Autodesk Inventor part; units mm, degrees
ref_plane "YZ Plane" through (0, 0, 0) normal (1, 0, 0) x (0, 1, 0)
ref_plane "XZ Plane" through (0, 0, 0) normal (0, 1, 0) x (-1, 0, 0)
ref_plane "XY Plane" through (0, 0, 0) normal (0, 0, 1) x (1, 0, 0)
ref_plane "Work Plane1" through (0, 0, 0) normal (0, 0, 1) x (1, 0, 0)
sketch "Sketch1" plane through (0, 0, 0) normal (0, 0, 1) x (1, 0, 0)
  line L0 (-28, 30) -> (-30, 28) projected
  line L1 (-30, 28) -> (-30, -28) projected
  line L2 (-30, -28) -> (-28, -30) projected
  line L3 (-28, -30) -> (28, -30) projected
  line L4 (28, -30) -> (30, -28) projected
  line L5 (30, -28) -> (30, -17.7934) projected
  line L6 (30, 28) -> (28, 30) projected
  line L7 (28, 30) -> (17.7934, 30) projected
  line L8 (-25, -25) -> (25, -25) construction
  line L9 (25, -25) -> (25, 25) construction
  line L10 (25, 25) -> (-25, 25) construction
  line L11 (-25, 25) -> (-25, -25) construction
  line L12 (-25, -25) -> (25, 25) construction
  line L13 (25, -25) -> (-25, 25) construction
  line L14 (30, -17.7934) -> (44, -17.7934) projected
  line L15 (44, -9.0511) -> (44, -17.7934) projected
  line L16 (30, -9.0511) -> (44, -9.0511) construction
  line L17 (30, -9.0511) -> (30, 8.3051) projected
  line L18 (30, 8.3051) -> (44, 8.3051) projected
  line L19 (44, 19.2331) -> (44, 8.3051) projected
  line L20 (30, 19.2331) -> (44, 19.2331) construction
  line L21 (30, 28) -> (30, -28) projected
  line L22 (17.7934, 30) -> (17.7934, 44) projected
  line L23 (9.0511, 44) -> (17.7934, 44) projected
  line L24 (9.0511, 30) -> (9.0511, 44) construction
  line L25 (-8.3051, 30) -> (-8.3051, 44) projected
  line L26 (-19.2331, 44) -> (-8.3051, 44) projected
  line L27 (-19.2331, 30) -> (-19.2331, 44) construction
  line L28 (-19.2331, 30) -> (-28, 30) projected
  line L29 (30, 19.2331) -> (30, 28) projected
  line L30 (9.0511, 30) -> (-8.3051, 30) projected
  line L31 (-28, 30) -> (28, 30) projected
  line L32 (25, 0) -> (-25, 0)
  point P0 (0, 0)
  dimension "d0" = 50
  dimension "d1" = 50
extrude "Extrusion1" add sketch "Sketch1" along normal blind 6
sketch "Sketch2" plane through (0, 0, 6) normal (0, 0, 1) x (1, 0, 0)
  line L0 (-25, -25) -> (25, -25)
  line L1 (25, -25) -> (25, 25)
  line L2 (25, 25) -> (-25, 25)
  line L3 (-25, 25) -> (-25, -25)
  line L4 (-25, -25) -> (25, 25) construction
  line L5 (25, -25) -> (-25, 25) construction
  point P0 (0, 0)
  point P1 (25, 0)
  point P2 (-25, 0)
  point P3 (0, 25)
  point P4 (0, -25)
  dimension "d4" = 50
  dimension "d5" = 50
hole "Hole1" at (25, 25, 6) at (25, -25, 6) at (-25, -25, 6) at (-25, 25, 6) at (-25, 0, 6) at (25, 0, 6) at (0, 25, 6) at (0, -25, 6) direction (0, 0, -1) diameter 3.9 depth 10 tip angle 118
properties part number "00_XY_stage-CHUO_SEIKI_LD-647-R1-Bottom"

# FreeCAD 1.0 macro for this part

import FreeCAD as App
import Part
import Sketcher
from FreeCAD import Vector
Q = App.Units.Quantity

doc = App.newDocument("Part")
body = doc.addObject("PartDesign::Body", "Body")

# Sketch on XY plane
sketch1 = body.newObject("Sketcher::SketchObject", "Sketch")
sketch1.AttachmentSupport = (doc.getObject("XY_Plane"), [""])
sketch1.MapMode = "FlatFace"
sketch1.addGeometry(Part.LineSegment(Vector(28, 30, 0), Vector(-28, 30, 0)), False)
sketch1.addGeometry(Part.LineSegment(Vector(-28, 30, 0), Vector(-30, 28, 0)), False)
sketch1.addGeometry(Part.LineSegment(Vector(-30, 28, 0), Vector(-30, -28, 0)), False)
sketch1.addGeometry(Part.LineSegment(Vector(-30, -28, 0), Vector(-28, -30, 0)), False)
sketch1.addGeometry(Part.LineSegment(Vector(-28, -30, 0), Vector(28, -30, 0)), False)
sketch1.addGeometry(Part.LineSegment(Vector(28, -30, 0), Vector(30, -28, 0)), False)
sketch1.addGeometry(Part.LineSegment(Vector(30, -28, 0), Vector(30, 28, 0)), False)
sketch1.addGeometry(Part.LineSegment(Vector(30, 28, 0), Vector(28, 30, 0)), False)
sketch1.addConstraint(Sketcher.Constraint("Coincident", 0, 2, 1, 1))
sketch1.addConstraint(Sketcher.Constraint("Coincident", 1, 2, 2, 1))
sketch1.addConstraint(Sketcher.Constraint("Coincident", 2, 2, 3, 1))
sketch1.addConstraint(Sketcher.Constraint("Coincident", 3, 2, 4, 1))
sketch1.addConstraint(Sketcher.Constraint("Coincident", 4, 2, 5, 1))
sketch1.addConstraint(Sketcher.Constraint("Coincident", 5, 2, 6, 1))
sketch1.addConstraint(Sketcher.Constraint("Coincident", 6, 2, 7, 1))
sketch1.addConstraint(Sketcher.Constraint("Coincident", 7, 2, 0, 1))
sketch1.addConstraint(Sketcher.Constraint("Horizontal", 0))
sketch1.addConstraint(Sketcher.Constraint("Vertical", 2))
sketch1.addConstraint(Sketcher.Constraint("Horizontal", 4))
sketch1.addConstraint(Sketcher.Constraint("Vertical", 6))
sketch1.addConstraint(Sketcher.Constraint("Symmetric", 0, 2, 4, 2, -1, 1))
sketch1.addConstraint(Sketcher.Constraint("Symmetric", 1, 2, 5, 2, -1, 1))
sketch1.addConstraint(Sketcher.Constraint("Perpendicular", 1, 3))
sketch1.addConstraint(Sketcher.Constraint("Perpendicular", 5, 7))
sketch1.addConstraint(Sketcher.Constraint("Horizontal", 2, 2, 5, 2))
sketch1.addConstraint(Sketcher.Constraint("Horizontal", 1, 2, 6, 2))
sketch1.addConstraint(Sketcher.Constraint("Vertical", 0, 2, 3, 2))
sketch1.addConstraint(Sketcher.Constraint("Equal", 4, 2))
sketch1.addConstraint(Sketcher.Constraint("DistanceX", 0, 2, 0, 1, Q("56 mm")))
sketch1.addConstraint(Sketcher.Constraint("DistanceY", -1, 1, 0, 2, Q("30 mm")))
pad1 = body.newObject("PartDesign::Pad", "Pad")
pad1.Profile = sketch1
pad1.Length = 6

# Sketch on XY plane
sketch2 = body.newObject("Sketcher::SketchObject", "Sketch001")
sketch2.AttachmentSupport = (doc.getObject("XY_Plane"), [""])
sketch2.MapMode = "FlatFace"
sketch2.AttachmentOffset = App.Placement(Vector(0, 0, 6), App.Rotation())
sketch2.addGeometry(Part.Circle(Vector(25, 25, 0), Vector(0, 0, 1), 1.9), False)
sketch2.addGeometry(Part.Circle(Vector(25, -25, 0), Vector(0, 0, 1), 1.9), False)
sketch2.addGeometry(Part.Circle(Vector(-25, -25, 0), Vector(0, 0, 1), 1.9), False)
sketch2.addGeometry(Part.Circle(Vector(-25, 25, 0), Vector(0, 0, 1), 1.9), False)
sketch2.addGeometry(Part.Circle(Vector(-25, 0, 0), Vector(0, 0, 1), 1.9), False)
sketch2.addGeometry(Part.Circle(Vector(25, 0, 0), Vector(0, 0, 1), 1.9), False)
sketch2.addGeometry(Part.Circle(Vector(0, 25, 0), Vector(0, 0, 1), 1.9), False)
sketch2.addGeometry(Part.Circle(Vector(0, -25, 0), Vector(0, 0, 1), 1.9), False)
sketch2.addConstraint(Sketcher.Constraint("Equal", 0, 1))
sketch2.addConstraint(Sketcher.Constraint("Equal", 1, 2))
sketch2.addConstraint(Sketcher.Constraint("Equal", 2, 3))
sketch2.addConstraint(Sketcher.Constraint("Equal", 3, 4))
sketch2.addConstraint(Sketcher.Constraint("Equal", 4, 5))
sketch2.addConstraint(Sketcher.Constraint("Equal", 5, 6))
sketch2.addConstraint(Sketcher.Constraint("Equal", 6, 7))
sketch2.addConstraint(Sketcher.Constraint("Symmetric", 0, 3, 2, 3, -1, 1))
sketch2.addConstraint(Sketcher.Constraint("Symmetric", 1, 3, 3, 3, -1, 1))
sketch2.addConstraint(Sketcher.Constraint("Symmetric", 4, 3, 5, 3, -1, 1))
sketch2.addConstraint(Sketcher.Constraint("Symmetric", 6, 3, 7, 3, -1, 1))
sketch2.addConstraint(Sketcher.Constraint("Symmetric", 1, 3, 2, 3, -2))
sketch2.addConstraint(Sketcher.Constraint("PointOnObject", 4, 3, -1))
sketch2.addConstraint(Sketcher.Constraint("PointOnObject", 6, 3, -2))
sketch2.addConstraint(Sketcher.Constraint("Horizontal", 3, 3, 6, 3))
sketch2.addConstraint(Sketcher.Constraint("Vertical", 3, 3, 4, 3))
sketch2.addConstraint(Sketcher.Constraint("Diameter", 0, Q("3.9 mm")))
sketch2.addConstraint(Sketcher.Constraint("DistanceX", -1, 1, 0, 3, Q("25 mm")))
sketch2.addConstraint(Sketcher.Constraint("DistanceY", -1, 1, 0, 3, Q("25 mm")))
doc.recompute()
hole = body.newObject("PartDesign::Hole", "Hole")
hole.Profile = sketch2
hole.ThreadType = "None"
hole.Diameter = 3.9
hole.DepthType = "Dimension"
hole.Depth = 10
hole.DrillPoint = "Angled"
hole.DrillPointAngle = 118

doc.recompute()
